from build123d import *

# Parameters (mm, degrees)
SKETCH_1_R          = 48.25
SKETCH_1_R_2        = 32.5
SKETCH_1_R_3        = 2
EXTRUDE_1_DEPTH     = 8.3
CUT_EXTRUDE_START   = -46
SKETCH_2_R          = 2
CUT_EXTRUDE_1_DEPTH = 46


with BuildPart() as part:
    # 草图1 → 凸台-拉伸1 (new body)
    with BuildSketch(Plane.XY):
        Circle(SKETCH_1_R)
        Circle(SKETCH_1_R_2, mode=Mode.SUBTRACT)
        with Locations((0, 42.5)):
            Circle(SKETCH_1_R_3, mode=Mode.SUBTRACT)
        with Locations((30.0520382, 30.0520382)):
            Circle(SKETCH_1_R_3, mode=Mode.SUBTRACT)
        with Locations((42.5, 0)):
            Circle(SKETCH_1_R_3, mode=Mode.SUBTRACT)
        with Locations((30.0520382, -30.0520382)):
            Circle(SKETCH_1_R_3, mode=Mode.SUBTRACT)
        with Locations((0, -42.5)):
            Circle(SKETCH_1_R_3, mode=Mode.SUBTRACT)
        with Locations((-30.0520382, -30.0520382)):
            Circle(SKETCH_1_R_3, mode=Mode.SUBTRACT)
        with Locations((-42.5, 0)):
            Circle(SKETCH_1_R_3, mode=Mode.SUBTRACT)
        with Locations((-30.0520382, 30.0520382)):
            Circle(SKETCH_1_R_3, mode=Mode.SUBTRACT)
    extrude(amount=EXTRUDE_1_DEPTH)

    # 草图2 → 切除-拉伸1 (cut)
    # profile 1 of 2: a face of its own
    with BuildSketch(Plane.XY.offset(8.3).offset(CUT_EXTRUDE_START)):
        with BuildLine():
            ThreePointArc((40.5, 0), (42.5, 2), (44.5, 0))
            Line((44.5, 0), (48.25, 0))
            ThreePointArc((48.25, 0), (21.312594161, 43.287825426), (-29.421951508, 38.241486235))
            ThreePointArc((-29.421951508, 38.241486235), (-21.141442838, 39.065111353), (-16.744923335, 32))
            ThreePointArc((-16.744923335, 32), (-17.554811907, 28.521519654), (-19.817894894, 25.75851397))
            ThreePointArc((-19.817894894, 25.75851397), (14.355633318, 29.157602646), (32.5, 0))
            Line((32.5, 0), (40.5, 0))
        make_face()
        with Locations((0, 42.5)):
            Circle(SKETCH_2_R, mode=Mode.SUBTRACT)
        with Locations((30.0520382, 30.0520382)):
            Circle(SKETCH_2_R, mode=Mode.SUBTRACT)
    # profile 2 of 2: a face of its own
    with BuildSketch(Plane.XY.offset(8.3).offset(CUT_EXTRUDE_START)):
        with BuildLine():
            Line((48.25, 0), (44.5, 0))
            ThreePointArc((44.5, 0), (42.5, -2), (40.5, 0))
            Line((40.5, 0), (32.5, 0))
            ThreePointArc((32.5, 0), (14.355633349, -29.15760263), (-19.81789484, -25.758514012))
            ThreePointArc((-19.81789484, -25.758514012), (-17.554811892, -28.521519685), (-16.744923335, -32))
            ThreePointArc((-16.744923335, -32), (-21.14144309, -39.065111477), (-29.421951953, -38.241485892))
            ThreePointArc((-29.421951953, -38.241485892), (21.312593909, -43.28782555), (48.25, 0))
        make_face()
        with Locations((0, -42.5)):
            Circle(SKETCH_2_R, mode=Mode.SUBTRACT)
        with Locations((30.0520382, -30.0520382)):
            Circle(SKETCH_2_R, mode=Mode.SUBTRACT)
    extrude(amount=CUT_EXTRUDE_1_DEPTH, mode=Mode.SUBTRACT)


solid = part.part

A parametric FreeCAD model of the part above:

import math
import FreeCAD as App
import Part
import Sketcher

V = App.Vector

doc = App.newDocument("Part")
body = doc.addObject("PartDesign::Body", "Body")

# Sketch on XY plane
sketch1 = doc.addObject("Sketcher::SketchObject", "Sketch")
body.addObject(sketch1)
sketch1.AttachmentSupport = (doc.XY_Plane, [""])
sketch1.MapMode = "FlatFace"
sketch1.addGeometry([
    Part.Circle(V(0, 0, 0), V(0, 0, 1), 48.2),  # 0
    Part.Circle(V(-30.1, -30.1, 0), V(0, 0, 1), 2),  # 1
    Part.Circle(V(0, -42.5, 0), V(0, 0, 1), 2),  # 2
    Part.Circle(V(30.1, -30.1, 0), V(0, 0, 1), 2),  # 3
    Part.Circle(V(-42.5, 0, 0), V(0, 0, 1), 2),  # 4
    Part.Circle(V(-30.1, 30.1, 0), V(0, 0, 1), 2),  # 5
    Part.Circle(V(0, 0, 0), V(0, 0, 1), 32.5),  # 6
    Part.Circle(V(42.5, 0, 0), V(0, 0, 1), 2),  # 7
    Part.Circle(V(0, 42.5, 0), V(0, 0, 1), 2),  # 8
    Part.Circle(V(30.1, 30.1, 0), V(0, 0, 1), 2),  # 9
], False)
sketch1.addConstraint([
    Sketcher.Constraint("Coincident", 0, 3, -1, 1),
    Sketcher.Constraint("Coincident", 6, 3, -1, 1),
    Sketcher.Constraint("Equal", 1, 2),
    Sketcher.Constraint("Equal", 2, 3),
    Sketcher.Constraint("Equal", 3, 4),
    Sketcher.Constraint("Equal", 4, 5),
    Sketcher.Constraint("Equal", 5, 7),
    Sketcher.Constraint("Equal", 7, 8),
    Sketcher.Constraint("Equal", 8, 9),
    Sketcher.Constraint("Symmetric", 3, 3, 5, 3, -1, 1),
    Sketcher.Constraint("Symmetric", 4, 3, 7, 3, -1, 1),
    Sketcher.Constraint("Symmetric", 2, 3, 8, 3, -1, 1),
    Sketcher.Constraint("Symmetric", 1, 3, 9, 3, -1, 1),
    Sketcher.Constraint("Symmetric", 1, 3, 3, 3, -2),
    Sketcher.Constraint("PointOnObject", 2, 3, -2),
    Sketcher.Constraint("PointOnObject", 4, 3, -1),
    Sketcher.Constraint("Diameter", 1, 4.0),
    Sketcher.Constraint("Diameter", 6, 65.0),
    Sketcher.Constraint("Diameter", 0, 96.5),
    Sketcher.Constraint("DistanceY", 2, 3, -1, 1, 42.5),
    Sketcher.Constraint("DistanceX", 4, 3, -1, 1, 42.5),
    Sketcher.Constraint("DistanceX", 1, 3, -1, 1, 30.052038),
    Sketcher.Constraint("DistanceY", 1, 3, -1, 1, 30.052038),
])
pad1 = doc.addObject("PartDesign::Pad", "Pad")
body.addObject(pad1)
pad1.Profile = sketch1
pad1.Length = 8.3

# Sketch on XY plane
sketch2 = doc.addObject("Sketcher::SketchObject", "Sketch001")
body.addObject(sketch2)
sketch2.AttachmentSupport = (doc.XY_Plane, [""])
sketch2.MapMode = "FlatFace"
sketch2.AttachmentOffset = App.Placement(V(0, 0, -37.7), App.Rotation())
sketch2.addGeometry([
    Part.ArcOfCircle(Part.Circle(V(0, 0, 0), V(0, 0, 1), 32.5), math.radians(0), math.radians(128)),  # 0
    Part.ArcOfCircle(Part.Circle(V(0, 0, 0), V(0, 0, 1), 32.5), math.radians(-128), math.radians(0)),  # 1
    Part.ArcOfCircle(Part.Circle(V(-24.6, -32, 0), V(0, 0, 1), 7.9), math.radians(0), math.radians(52)),  # 2
    Part.ArcOfCircle(Part.Circle(V(-24.6, -32, 0), V(0, 0, 1), 7.9), math.radians(-128), math.radians(0)),  # 3
    Part.ArcOfCircle(Part.Circle(V(0, 0, 0), V(0, 0, 1), 48.2), math.radians(-128), math.radians(0)),  # 4
    Part.ArcOfCircle(Part.Circle(V(0, 0, 0), V(0, 0, 1), 48.2), math.radians(0), math.radians(128)),  # 5
    Part.ArcOfCircle(Part.Circle(V(-24.6, 32, 0), V(0, 0, 1), 7.9), math.radians(0), math.radians(128)),  # 6
    Part.ArcOfCircle(Part.Circle(V(-24.6, 32, 0), V(0, 0, 1), 7.9), math.radians(-52), math.radians(0)),  # 7
    Part.Circle(V(42.5, 0, 0), V(0, 0, 1), 2),  # 8
    Part.Circle(V(30.1, 30.1, 0), V(0, 0, 1), 2),  # 9
    Part.Circle(V(0, 42.5, 0), V(0, 0, 1), 2),  # 10
    Part.Circle(V(0, -42.5, 0), V(0, 0, 1), 2),  # 11
    Part.Circle(V(30.1, -30.1, 0), V(0, 0, 1), 2),  # 12
], False)
sketch2.addConstraint([
    Sketcher.Constraint("Tangent", 0, 1, 1, 2),
    Sketcher.Constraint("Tangent", 1, 1, 2, 2),
    Sketcher.Constraint("Tangent", 2, 1, 3, 2),
    Sketcher.Constraint("Tangent", 3, 1, 4, 1),
    Sketcher.Constraint("Tangent", 4, 2, 5, 1),
    Sketcher.Constraint("Tangent", 5, 2, 6, 2),
    Sketcher.Constraint("Tangent", 6, 1, 7, 2),
    Sketcher.Constraint("Tangent", 7, 1, 0, 2),
    Sketcher.Constraint("Coincident", 0, 3, -1, 1),
    Sketcher.Constraint("Coincident", 4, 3, -1, 1),
    Sketcher.Constraint("Equal", 0, 1),
    Sketcher.Constraint("Equal", 2, 3),
    Sketcher.Constraint("Equal", 4, 5),
    Sketcher.Constraint("Equal", 3, 6),
    Sketcher.Constraint("Equal", 8, 9),
    Sketcher.Constraint("Equal", 9, 10),
    Sketcher.Constraint("Equal", 10, 11),
    Sketcher.Constraint("Equal", 11, 12),
    Sketcher.Constraint("Symmetric", 10, 3, 11, 3, -1, 1),
    Sketcher.Constraint("Symmetric", 9, 3, 12, 3, -1),
    Sketcher.Constraint("Symmetric", 2, 1, 6, 1, -1),
    Sketcher.Constraint("PointOnObject", 8, 3, -1),
    Sketcher.Constraint("PointOnObject", 10, 3, -2),
    Sketcher.Constraint("PointOnObject", 0, 1, -1),
    Sketcher.Constraint("PointOnObject", 4, 2, -1),
    Sketcher.Constraint("Horizontal", 3, 3, 2, 1),
    Sketcher.Constraint("Diameter", 8, 4.0),
    Sketcher.Constraint("Radius", 0, 32.5),
    Sketcher.Constraint("Radius", 4, 48.25),
    Sketcher.Constraint("DistanceY", 2, 3, -1, 1, 32.0),
    Sketcher.Constraint("DistanceX", 0, 1, 8, 3, 10.0),
    Sketcher.Constraint("DistanceY", -1, 1, 10, 3, 42.5),
    Sketcher.Constraint("DistanceX", -1, 1, 9, 3, 30.052038),
    Sketcher.Constraint("DistanceY", -1, 1, 9, 3, 30.052038),
])
pocket1 = doc.addObject("PartDesign::Pocket", "Pocket")
body.addObject(pocket1)
pocket1.Profile = sketch2
pocket1.Length = 46
pocket1.Reversed = True

doc.recompute()
